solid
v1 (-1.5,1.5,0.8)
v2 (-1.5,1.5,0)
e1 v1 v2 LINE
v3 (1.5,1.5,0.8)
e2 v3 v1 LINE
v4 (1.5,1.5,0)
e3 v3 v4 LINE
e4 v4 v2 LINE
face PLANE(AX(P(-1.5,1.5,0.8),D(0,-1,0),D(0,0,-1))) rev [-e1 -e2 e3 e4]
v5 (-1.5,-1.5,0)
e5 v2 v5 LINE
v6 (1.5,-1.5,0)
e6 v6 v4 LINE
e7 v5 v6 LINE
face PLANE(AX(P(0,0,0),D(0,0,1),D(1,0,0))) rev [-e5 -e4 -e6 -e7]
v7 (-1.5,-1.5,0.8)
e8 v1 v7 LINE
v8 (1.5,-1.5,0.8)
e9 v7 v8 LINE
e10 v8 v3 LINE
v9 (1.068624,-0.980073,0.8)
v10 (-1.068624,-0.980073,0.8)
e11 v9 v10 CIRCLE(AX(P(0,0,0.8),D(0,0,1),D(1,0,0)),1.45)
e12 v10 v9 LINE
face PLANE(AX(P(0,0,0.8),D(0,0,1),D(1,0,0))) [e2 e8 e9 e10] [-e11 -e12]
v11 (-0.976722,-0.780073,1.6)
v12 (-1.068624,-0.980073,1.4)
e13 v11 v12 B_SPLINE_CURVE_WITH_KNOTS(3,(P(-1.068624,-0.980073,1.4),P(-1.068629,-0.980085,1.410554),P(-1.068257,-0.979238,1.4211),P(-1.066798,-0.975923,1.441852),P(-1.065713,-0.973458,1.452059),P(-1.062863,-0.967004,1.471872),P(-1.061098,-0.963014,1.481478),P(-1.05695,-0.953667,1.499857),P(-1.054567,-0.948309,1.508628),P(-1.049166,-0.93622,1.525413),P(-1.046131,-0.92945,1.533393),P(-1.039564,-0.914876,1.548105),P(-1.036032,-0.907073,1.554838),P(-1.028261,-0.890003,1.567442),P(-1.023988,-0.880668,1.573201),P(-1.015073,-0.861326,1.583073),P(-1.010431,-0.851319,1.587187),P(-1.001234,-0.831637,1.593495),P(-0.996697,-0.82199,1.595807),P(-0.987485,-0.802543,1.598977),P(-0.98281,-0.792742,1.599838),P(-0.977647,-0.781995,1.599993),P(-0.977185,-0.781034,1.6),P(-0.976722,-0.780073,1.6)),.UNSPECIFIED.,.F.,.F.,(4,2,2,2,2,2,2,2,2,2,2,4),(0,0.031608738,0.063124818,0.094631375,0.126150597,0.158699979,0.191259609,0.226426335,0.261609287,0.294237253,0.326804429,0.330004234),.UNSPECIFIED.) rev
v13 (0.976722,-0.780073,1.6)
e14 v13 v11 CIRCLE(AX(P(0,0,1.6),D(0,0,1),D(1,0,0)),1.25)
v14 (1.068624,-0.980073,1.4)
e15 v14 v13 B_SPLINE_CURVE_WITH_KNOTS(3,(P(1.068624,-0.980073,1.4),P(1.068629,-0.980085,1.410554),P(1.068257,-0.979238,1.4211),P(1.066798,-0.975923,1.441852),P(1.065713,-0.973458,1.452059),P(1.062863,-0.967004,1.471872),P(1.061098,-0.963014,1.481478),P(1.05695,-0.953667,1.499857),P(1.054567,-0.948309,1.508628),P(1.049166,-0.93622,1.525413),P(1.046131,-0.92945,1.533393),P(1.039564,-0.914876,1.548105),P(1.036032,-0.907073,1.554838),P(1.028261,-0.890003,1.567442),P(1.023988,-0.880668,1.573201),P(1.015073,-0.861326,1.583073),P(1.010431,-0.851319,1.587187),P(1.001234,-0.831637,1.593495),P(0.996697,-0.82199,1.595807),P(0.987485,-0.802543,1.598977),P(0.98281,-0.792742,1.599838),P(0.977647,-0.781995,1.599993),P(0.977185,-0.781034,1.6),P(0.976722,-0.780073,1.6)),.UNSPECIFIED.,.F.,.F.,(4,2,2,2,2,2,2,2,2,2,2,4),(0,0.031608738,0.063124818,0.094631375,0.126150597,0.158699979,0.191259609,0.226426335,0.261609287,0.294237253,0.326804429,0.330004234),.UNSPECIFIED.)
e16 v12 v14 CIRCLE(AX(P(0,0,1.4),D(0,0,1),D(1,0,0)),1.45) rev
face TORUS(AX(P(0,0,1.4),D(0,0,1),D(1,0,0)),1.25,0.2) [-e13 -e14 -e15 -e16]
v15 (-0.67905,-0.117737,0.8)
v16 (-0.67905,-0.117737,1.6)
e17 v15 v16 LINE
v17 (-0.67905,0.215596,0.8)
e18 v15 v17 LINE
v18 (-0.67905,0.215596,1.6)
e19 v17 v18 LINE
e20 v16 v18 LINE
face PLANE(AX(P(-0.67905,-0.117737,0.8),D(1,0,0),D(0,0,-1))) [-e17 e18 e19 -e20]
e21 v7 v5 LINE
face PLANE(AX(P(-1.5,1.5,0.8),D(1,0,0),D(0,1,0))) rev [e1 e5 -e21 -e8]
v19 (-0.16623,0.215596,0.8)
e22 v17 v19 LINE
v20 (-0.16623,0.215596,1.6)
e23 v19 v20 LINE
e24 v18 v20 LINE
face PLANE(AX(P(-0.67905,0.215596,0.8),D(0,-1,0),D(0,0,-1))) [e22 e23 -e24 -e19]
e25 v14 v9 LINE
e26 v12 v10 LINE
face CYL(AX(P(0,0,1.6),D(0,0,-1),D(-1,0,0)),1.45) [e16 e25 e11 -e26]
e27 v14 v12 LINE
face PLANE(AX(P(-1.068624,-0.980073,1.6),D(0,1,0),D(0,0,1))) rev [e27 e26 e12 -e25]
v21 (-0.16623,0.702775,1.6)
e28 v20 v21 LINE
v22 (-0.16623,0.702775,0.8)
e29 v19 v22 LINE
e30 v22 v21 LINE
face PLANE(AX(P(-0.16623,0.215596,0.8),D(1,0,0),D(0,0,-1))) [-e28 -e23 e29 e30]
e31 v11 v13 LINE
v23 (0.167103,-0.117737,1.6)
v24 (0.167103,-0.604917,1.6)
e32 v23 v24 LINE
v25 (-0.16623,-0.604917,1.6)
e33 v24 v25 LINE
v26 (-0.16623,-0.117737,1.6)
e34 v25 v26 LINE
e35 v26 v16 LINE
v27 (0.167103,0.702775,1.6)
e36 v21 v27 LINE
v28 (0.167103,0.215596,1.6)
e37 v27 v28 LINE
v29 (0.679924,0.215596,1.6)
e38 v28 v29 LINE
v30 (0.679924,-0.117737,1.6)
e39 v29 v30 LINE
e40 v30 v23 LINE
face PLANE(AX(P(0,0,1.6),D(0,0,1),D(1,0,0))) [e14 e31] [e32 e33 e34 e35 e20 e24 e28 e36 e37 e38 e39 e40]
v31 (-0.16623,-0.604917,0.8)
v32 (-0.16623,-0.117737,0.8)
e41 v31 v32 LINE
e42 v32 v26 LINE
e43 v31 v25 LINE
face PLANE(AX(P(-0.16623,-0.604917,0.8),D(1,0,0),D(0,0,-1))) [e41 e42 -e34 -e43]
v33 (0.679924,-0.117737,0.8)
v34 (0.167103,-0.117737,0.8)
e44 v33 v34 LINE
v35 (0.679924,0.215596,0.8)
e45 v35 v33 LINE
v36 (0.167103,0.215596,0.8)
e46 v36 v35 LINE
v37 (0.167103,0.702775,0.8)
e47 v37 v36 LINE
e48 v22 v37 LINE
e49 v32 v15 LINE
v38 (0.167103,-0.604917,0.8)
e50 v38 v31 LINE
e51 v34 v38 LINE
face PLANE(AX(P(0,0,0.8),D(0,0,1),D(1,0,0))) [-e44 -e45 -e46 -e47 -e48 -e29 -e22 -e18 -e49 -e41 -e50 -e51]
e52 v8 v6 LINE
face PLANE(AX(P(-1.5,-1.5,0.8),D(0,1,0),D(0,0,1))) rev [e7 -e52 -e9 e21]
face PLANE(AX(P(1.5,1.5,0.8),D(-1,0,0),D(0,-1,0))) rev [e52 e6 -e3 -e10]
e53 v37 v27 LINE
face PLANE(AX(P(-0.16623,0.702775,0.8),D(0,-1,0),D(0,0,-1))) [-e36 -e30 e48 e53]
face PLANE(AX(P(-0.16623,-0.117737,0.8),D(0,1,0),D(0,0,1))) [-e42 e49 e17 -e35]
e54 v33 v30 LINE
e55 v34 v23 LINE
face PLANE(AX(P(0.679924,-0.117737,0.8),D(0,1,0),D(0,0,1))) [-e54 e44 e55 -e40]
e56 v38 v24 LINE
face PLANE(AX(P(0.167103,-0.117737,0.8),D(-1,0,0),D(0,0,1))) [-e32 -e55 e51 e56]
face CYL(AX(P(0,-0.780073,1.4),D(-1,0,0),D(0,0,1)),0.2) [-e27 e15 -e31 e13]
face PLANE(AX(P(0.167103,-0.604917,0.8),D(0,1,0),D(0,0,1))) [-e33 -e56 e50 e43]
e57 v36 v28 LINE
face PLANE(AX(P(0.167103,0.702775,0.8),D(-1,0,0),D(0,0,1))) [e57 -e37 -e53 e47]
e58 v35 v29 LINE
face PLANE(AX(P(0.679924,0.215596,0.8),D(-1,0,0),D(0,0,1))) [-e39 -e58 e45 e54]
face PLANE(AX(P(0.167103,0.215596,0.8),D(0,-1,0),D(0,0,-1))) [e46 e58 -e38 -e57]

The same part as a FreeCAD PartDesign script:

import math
import FreeCAD as App
import Part
import Sketcher


def edges_at(feature, points):
    """Names of the edges that pass closest to the given points."""
    edges = feature.Shape.Edges
    near = lambda p: min(range(len(edges)), key=lambda i: edges[i].distToShape(Part.Vertex(*p))[0])
    return sorted({f"Edge{near(p) + 1}" for p in points})

doc = App.newDocument("Part")
body = doc.addObject("PartDesign::Body", "Body")

# Sketch on XY plane
sketch1 = doc.addObject("Sketcher::SketchObject", "Sketch")
body.addObject(sketch1)
sketch1.AttachmentSupport = (doc.XY_Plane, [""])
sketch1.MapMode = "FlatFace"
sketch1.addGeometry(Part.LineSegment(App.Vector(-1.5, 1.5, 0), App.Vector(-1.5, -1.5, 0)), False)
sketch1.addGeometry(Part.LineSegment(App.Vector(-1.5, -1.5, 0), App.Vector(1.5, -1.5, 0)), False)
sketch1.addGeometry(Part.LineSegment(App.Vector(1.5, -1.5, 0), App.Vector(1.5, 1.5, 0)), False)
sketch1.addGeometry(Part.LineSegment(App.Vector(1.5, 1.5, 0), App.Vector(-1.5, 1.5, 0)), False)
sketch1.addConstraint(Sketcher.Constraint("Coincident", 0, 2, 1, 1))
sketch1.addConstraint(Sketcher.Constraint("Coincident", 1, 2, 2, 1))
sketch1.addConstraint(Sketcher.Constraint("Coincident", 2, 2, 3, 1))
sketch1.addConstraint(Sketcher.Constraint("Coincident", 3, 2, 0, 1))
sketch1.addConstraint(Sketcher.Constraint("Vertical", 0))
sketch1.addConstraint(Sketcher.Constraint("Horizontal", 1))
sketch1.addConstraint(Sketcher.Constraint("Vertical", 2))
sketch1.addConstraint(Sketcher.Constraint("Horizontal", 3))
sketch1.addConstraint(Sketcher.Constraint("Symmetric", 0, 2, 2, 2, -1, 1))
sketch1.addConstraint(Sketcher.Constraint("Equal", 3, 0))
sketch1.addConstraint(Sketcher.Constraint("DistanceX", 1, 1, 1, 2, 3.0))
pad1 = doc.addObject("PartDesign::Pad", "Pad")
body.addObject(pad1)
pad1.Profile = sketch1
pad1.Length = 0.8

# Sketch on XY plane
sketch2 = doc.addObject("Sketcher::SketchObject", "Sketch001")
body.addObject(sketch2)
sketch2.AttachmentSupport = (doc.XY_Plane, [""])
sketch2.MapMode = "FlatFace"
sketch2.AttachmentOffset = App.Placement(App.Vector(0, 0, 0.8), App.Rotation())
sketch2.addGeometry(Part.LineSegment(App.Vector(-1.068624, -0.980073, 0), App.Vector(1.068624, -0.980073, 0)), False)
sketch2.addGeometry(Part.ArcOfCircle(Part.Circle(App.Vector(0, 0, 0), App.Vector(0, 0, 1), 1.45), math.radians(-42.525027), math.radians(222.525027)), False)
sketch2.addConstraint(Sketcher.Constraint("Coincident", 0, 1, 1, 2))
sketch2.addConstraint(Sketcher.Constraint("Coincident", 1, 1, 0, 2))
sketch2.addConstraint(Sketcher.Constraint("Horizontal", 0))
sketch2.addConstraint(Sketcher.Constraint("Coincident", 1, 3, -1, 1))
sketch2.addConstraint(Sketcher.Constraint("Radius", 1, 1.45))
sketch2.addConstraint(Sketcher.Constraint("DistanceX", 0, 1, 0, 2, 2.137248))
pad2 = doc.addObject("PartDesign::Pad", "Pad001")
body.addObject(pad2)
pad2.Profile = sketch2
pad2.Length = 0.8

# Sketch on XY plane
sketch3 = doc.addObject("Sketcher::SketchObject", "Sketch002")
body.addObject(sketch3)
sketch3.AttachmentSupport = (doc.XY_Plane, [""])
sketch3.MapMode = "FlatFace"
sketch3.AttachmentOffset = App.Placement(App.Vector(0, 0, 1.6), App.Rotation())
sketch3.addGeometry(Part.LineSegment(App.Vector(-0.16623, 0.702775, 0), App.Vector(-0.16623, 0.215596, 0)), False)
sketch3.addGeometry(Part.LineSegment(App.Vector(-0.16623, 0.215596, 0), App.Vector(-0.67905, 0.215596, 0)), False)
sketch3.addGeometry(Part.LineSegment(App.Vector(-0.67905, 0.215596, 0), App.Vector(-0.67905, -0.117737, 0)), False)
sketch3.addGeometry(Part.LineSegment(App.Vector(-0.67905, -0.117737, 0), App.Vector(-0.16623, -0.117737, 0)), False)
sketch3.addGeometry(Part.LineSegment(App.Vector(-0.16623, -0.117737, 0), App.Vector(-0.16623, -0.604917, 0)), False)
sketch3.addGeometry(Part.LineSegment(App.Vector(-0.16623, -0.604917, 0), App.Vector(0.167103, -0.604917, 0)), False)
sketch3.addGeometry(Part.LineSegment(App.Vector(0.167103, -0.604917, 0), App.Vector(0.167103, -0.117737, 0)), False)
sketch3.addGeometry(Part.LineSegment(App.Vector(0.167103, -0.117737, 0), App.Vector(0.679924, -0.117737, 0)), False)
sketch3.addGeometry(Part.LineSegment(App.Vector(0.679924, -0.117737, 0), App.Vector(0.679924, 0.215596, 0)), False)
sketch3.addGeometry(Part.LineSegment(App.Vector(0.679924, 0.215596, 0), App.Vector(0.167103, 0.215596, 0)), False)
sketch3.addGeometry(Part.LineSegment(App.Vector(0.167103, 0.215596, 0), App.Vector(0.167103, 0.702775, 0)), False)
sketch3.addGeometry(Part.LineSegment(App.Vector(0.167103, 0.702775, 0), App.Vector(-0.16623, 0.702775, 0)), False)
sketch3.addConstraint(Sketcher.Constraint("Coincident", 0, 2, 1, 1))
sketch3.addConstraint(Sketcher.Constraint("Coincident", 1, 2, 2, 1))
sketch3.addConstraint(Sketcher.Constraint("Coincident", 2, 2, 3, 1))
sketch3.addConstraint(Sketcher.Constraint("Coincident", 3, 2, 4, 1))
sketch3.addConstraint(Sketcher.Constraint("Coincident", 4, 2, 5, 1))
sketch3.addConstraint(Sketcher.Constraint("Coincident", 5, 2, 6, 1))
sketch3.addConstraint(Sketcher.Constraint("Coincident", 6, 2, 7, 1))
sketch3.addConstraint(Sketcher.Constraint("Coincident", 7, 2, 8, 1))
sketch3.addConstraint(Sketcher.Constraint("Coincident", 8, 2, 9, 1))
sketch3.addConstraint(Sketcher.Constraint("Coincident", 9, 2, 10, 1))
sketch3.addConstraint(Sketcher.Constraint("Coincident", 10, 2, 11, 1))
sketch3.addConstraint(Sketcher.Constraint("Coincident", 11, 2, 0, 1))
sketch3.addConstraint(Sketcher.Constraint("Vertical", 0))
sketch3.addConstraint(Sketcher.Constraint("Horizontal", 1))
sketch3.addConstraint(Sketcher.Constraint("Vertical", 2))
sketch3.addConstraint(Sketcher.Constraint("Horizontal", 3))
sketch3.addConstraint(Sketcher.Constraint("Vertical", 4))
sketch3.addConstraint(Sketcher.Constraint("Horizontal", 5))
sketch3.addConstraint(Sketcher.Constraint("Vertical", 6))
sketch3.addConstraint(Sketcher.Constraint("Horizontal", 7))
sketch3.addConstraint(Sketcher.Constraint("Vertical", 8))
sketch3.addConstraint(Sketcher.Constraint("Horizontal", 9))
sketch3.addConstraint(Sketcher.Constraint("Vertical", 10))
sketch3.addConstraint(Sketcher.Constraint("Horizontal", 11))
sketch3.addConstraint(Sketcher.Constraint("Horizontal", 3, 2, 6, 2))
sketch3.addConstraint(Sketcher.Constraint("Horizontal", 1, 2, 8, 2))
sketch3.addConstraint(Sketcher.Constraint("Vertical", 0, 2, 3, 2))
sketch3.addConstraint(Sketcher.Constraint("Vertical", 6, 2, 9, 2))
sketch3.addConstraint(Sketcher.Constraint("Equal", 3, 7))
sketch3.addConstraint(Sketcher.Constraint("Equal", 11, 2))
sketch3.addConstraint(Sketcher.Constraint("Equal", 0, 4))
sketch3.addConstraint(Sketcher.Constraint("DistanceX", 1, 2, 1, 1, 0.512821))
sketch3.addConstraint(Sketcher.Constraint("DistanceY", 0, 2, 0, 1, 0.487179))
sketch3.addConstraint(Sketcher.Constraint("DistanceX", 5, 1, 5, 2, 0.333333))
sketch3.addConstraint(Sketcher.Constraint("DistanceX", 0, 2, -1, 1, 0.16623))
sketch3.addConstraint(Sketcher.Constraint("DistanceY", -1, 1, 0, 2, 0.215596))
pocket1 = doc.addObject("PartDesign::Pocket", "Pocket")
body.addObject(pocket1)
pocket1.Profile = sketch3
pocket1.Length = 0.8
doc.recompute()

fillet = doc.addObject("PartDesign::Fillet", "Fillet")
body.addObject(fillet)
fillet.Base = (pocket1, edges_at(pocket1, [(0, 1.45, 1.6), (0, -0.98, 1.6)]))
fillet.Radius = 0.2

doc.recompute()
